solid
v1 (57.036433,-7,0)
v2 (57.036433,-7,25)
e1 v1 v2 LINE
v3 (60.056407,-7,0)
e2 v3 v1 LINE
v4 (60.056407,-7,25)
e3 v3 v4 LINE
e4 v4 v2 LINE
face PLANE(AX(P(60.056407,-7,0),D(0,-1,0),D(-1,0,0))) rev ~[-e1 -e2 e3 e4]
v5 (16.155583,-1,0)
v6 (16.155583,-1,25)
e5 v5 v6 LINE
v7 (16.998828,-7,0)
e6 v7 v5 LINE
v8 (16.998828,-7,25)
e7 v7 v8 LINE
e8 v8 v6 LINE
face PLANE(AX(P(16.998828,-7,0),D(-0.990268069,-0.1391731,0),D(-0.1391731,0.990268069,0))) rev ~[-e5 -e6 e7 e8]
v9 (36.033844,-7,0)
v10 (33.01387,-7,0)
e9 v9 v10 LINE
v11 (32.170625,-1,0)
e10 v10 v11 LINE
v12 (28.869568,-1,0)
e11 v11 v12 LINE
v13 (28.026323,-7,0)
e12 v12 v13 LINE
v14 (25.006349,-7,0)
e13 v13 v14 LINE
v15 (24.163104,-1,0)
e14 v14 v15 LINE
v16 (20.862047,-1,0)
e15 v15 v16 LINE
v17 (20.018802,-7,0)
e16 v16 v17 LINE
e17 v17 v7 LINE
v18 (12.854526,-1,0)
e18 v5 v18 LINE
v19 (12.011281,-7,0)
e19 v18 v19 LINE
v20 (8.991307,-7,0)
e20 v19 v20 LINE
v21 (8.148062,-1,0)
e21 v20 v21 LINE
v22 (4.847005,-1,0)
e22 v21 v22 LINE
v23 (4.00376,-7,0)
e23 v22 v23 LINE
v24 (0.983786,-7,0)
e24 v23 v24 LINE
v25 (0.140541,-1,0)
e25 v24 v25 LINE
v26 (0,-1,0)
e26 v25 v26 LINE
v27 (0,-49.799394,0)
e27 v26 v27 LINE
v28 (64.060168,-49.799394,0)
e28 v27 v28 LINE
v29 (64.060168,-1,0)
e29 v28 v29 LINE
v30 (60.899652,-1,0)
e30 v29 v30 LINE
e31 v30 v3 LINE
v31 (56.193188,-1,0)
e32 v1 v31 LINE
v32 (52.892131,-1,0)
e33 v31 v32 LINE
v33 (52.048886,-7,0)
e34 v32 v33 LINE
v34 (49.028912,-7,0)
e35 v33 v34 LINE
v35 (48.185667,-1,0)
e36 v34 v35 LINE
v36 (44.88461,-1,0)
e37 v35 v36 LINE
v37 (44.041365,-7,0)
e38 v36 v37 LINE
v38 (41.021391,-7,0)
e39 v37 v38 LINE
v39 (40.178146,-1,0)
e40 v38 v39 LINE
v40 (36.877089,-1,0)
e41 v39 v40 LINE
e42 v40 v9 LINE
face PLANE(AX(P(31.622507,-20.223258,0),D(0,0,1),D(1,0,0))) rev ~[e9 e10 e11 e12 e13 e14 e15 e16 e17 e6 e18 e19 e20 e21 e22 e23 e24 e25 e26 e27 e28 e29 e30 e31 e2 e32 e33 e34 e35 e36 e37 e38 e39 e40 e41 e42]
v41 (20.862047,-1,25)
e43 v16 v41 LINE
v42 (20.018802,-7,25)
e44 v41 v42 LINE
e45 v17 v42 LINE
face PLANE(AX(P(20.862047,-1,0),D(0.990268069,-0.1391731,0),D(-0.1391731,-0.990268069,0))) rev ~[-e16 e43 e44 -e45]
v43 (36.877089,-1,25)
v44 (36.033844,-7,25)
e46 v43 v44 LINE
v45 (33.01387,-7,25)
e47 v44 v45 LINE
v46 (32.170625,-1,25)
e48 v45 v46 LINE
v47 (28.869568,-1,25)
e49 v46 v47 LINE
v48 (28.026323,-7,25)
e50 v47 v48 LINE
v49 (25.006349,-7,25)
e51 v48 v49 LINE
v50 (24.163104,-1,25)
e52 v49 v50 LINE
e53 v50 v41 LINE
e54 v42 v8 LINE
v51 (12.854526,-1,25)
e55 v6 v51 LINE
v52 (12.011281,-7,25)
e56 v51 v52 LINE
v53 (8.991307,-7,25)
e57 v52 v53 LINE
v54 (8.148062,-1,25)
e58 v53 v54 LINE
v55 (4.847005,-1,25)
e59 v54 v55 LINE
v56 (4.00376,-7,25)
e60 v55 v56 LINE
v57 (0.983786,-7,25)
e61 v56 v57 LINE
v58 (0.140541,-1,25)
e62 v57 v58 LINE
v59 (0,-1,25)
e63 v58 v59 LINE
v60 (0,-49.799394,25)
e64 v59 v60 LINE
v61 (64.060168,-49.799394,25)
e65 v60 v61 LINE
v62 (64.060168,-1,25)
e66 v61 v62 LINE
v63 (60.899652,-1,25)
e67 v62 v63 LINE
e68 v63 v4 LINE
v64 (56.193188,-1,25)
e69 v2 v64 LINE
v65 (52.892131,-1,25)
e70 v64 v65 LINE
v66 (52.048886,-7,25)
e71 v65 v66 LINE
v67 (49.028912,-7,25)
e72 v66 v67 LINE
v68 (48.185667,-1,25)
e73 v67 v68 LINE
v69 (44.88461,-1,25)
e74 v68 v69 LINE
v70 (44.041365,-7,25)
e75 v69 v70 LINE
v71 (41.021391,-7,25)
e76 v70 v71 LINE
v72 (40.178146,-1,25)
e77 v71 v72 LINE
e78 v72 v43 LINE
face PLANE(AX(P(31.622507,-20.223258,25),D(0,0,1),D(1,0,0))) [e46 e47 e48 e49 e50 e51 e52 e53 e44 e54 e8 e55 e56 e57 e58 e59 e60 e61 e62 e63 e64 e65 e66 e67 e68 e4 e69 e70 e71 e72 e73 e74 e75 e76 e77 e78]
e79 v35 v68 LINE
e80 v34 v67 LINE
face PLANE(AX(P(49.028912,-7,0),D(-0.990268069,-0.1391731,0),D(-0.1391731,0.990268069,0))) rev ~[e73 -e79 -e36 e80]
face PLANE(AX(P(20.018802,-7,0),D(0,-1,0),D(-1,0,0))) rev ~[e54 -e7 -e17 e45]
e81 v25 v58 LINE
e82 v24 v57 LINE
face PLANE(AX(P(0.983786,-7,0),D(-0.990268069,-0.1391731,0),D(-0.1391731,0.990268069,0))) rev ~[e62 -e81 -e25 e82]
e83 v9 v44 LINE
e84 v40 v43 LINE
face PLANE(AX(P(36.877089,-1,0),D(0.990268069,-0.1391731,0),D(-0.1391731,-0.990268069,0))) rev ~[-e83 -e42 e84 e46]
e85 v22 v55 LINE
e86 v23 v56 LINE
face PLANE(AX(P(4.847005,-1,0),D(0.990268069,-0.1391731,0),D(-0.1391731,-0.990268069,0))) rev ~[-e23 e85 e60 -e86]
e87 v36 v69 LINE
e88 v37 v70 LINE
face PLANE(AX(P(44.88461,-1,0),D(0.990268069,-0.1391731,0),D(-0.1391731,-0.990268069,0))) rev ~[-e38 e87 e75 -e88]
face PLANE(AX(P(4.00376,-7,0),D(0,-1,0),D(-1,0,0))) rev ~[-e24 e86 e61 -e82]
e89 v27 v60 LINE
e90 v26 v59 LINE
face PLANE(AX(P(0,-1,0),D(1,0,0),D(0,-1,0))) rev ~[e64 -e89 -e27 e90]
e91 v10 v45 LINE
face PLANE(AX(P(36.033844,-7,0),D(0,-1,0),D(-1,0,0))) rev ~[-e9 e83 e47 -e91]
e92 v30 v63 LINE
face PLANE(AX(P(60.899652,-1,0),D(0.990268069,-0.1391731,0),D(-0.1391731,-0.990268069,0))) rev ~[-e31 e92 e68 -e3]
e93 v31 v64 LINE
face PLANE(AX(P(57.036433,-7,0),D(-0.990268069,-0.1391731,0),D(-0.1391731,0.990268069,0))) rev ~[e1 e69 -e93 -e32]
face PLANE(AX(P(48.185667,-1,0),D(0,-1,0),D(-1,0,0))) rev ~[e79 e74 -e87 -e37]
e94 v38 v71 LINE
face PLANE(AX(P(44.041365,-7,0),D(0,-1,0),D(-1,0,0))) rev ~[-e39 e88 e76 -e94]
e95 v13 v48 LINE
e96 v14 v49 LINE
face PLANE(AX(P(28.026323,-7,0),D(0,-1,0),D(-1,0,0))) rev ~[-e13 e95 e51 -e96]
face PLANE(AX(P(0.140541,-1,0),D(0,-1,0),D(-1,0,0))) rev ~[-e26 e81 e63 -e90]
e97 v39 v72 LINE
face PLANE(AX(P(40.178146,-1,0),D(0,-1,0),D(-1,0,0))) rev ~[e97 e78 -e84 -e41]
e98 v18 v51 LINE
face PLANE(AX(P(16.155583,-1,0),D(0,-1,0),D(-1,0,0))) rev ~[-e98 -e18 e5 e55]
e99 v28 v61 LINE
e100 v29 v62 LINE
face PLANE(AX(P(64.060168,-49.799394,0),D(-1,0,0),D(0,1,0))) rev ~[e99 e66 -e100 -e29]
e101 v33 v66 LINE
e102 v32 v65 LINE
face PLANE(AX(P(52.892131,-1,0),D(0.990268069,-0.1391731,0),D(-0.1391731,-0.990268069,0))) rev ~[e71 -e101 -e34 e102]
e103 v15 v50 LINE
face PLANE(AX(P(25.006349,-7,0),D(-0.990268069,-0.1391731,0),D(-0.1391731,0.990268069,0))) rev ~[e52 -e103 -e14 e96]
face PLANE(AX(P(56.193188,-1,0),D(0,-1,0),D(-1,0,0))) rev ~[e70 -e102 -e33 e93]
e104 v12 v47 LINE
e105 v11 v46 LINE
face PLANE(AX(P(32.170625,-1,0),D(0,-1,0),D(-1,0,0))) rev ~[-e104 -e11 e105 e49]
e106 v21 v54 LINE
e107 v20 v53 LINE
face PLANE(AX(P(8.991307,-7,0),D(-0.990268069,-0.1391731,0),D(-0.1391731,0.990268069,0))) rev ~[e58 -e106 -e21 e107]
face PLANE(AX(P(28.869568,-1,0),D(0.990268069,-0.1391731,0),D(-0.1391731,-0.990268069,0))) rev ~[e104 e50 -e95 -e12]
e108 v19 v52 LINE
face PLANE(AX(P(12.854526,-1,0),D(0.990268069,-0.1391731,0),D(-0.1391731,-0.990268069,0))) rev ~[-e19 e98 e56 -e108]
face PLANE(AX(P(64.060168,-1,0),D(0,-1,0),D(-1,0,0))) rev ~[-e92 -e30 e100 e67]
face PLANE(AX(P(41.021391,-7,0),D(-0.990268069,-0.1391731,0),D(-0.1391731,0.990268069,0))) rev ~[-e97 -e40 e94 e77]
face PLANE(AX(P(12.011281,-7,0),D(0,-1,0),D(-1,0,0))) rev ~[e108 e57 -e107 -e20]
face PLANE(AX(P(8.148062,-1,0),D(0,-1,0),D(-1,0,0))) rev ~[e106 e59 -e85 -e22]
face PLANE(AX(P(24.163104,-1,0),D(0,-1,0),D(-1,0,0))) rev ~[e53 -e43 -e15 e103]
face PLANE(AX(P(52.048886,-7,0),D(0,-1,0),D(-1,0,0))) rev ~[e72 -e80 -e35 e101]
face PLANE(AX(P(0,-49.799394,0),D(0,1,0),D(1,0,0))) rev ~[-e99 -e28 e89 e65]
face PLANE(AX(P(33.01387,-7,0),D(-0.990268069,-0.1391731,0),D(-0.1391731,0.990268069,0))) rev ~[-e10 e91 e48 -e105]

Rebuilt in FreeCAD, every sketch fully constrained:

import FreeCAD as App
import Part
import Sketcher

V = App.Vector
Q = App.Units.Quantity


def add_polygon(sketch, points):
    """Adds a closed chain of lines whose ends are joined by coincident constraints."""
    first, n = sketch.GeometryCount, len(points)
    for a, b in zip(points, points[1:] + points[:1]):
        sketch.addGeometry(Part.LineSegment(App.Vector(*a, 0), App.Vector(*b, 0)), False)
    for i in range(n):
        sketch.addConstraint(Sketcher.Constraint("Coincident", first + i, 2, first + (i + 1) % n, 1))

doc = App.newDocument("Part")
params = doc.addObject("Spreadsheet::Sheet", "Params")
for row, (alias, value) in enumerate([
    ("pad1_length", "25 mm"),
], start=1):
    params.set(f"A{row}", alias)
    params.set(f"B{row}", "=" + value)
    params.setAlias(f"B{row}", alias)

body = doc.addObject("PartDesign::Body", "Body")

# Sketch on XY plane
sketch1 = doc.addObject("Sketcher::SketchObject", "Sketch")
body.addObject(sketch1)
sketch1.AttachmentSupport = (doc.XY_Plane, [""])
sketch1.MapMode = "FlatFace"
add_polygon(sketch1, [(0.140541, -1), (0, -1), (0, -49.799394), (64.060168, -49.799394), (64.060168, -1), (60.899652, -1), (60.056407, -7), (57.036433, -7), (56.193188, -1), (52.892131, -1), (52.048886, -7), (49.028912, -7), (48.185667, -1), (44.88461, -1), (44.041365, -7), (41.021391, -7), (40.178146, -1), (36.877089, -1), (36.033844, -7), (33.01387, -7), (32.170625, -1), (28.869568, -1), (28.026323, -7), (25.006349, -7), (24.163104, -1), (20.862047, -1), (20.018802, -7), (16.998828, -7), (16.155583, -1), (12.854526, -1), (12.011281, -7), (8.991307, -7), (8.148062, -1), (4.847005, -1), (4.00376, -7), (0.983786, -7)])  # lines 0-35
sketch1.addConstraint([
    Sketcher.Constraint("Horizontal", 0),
    Sketcher.Constraint("Vertical", 1),
    Sketcher.Constraint("Horizontal", 2),
    Sketcher.Constraint("Vertical", 3),
    Sketcher.Constraint("Horizontal", 4),
    Sketcher.Constraint("Horizontal", 6),
    Sketcher.Constraint("Horizontal", 8),
    Sketcher.Constraint("Horizontal", 10),
    Sketcher.Constraint("Horizontal", 12),
    Sketcher.Constraint("Horizontal", 14),
    Sketcher.Constraint("Horizontal", 16),
    Sketcher.Constraint("Horizontal", 18),
    Sketcher.Constraint("Horizontal", 20),
    Sketcher.Constraint("Horizontal", 22),
    Sketcher.Constraint("Horizontal", 24),
    Sketcher.Constraint("Horizontal", 26),
    Sketcher.Constraint("Horizontal", 28),
    Sketcher.Constraint("Horizontal", 30),
    Sketcher.Constraint("Horizontal", 32),
    Sketcher.Constraint("Horizontal", 34),
    Sketcher.Constraint("PointOnObject", 0, 2, -2),
    Sketcher.Constraint("Parallel", 5, 9),
    Sketcher.Constraint("Parallel", 7, 11),
    Sketcher.Constraint("Parallel", 9, 13),
    Sketcher.Constraint("Parallel", 11, 15),
    Sketcher.Constraint("Parallel", 13, 17),
    Sketcher.Constraint("Parallel", 15, 19),
    Sketcher.Constraint("Parallel", 17, 21),
    Sketcher.Constraint("Parallel", 19, 23),
    Sketcher.Constraint("Parallel", 21, 25),
    Sketcher.Constraint("Parallel", 23, 27),
    Sketcher.Constraint("Parallel", 25, 29),
    Sketcher.Constraint("Parallel", 27, 31),
    Sketcher.Constraint("Parallel", 29, 33),
    Sketcher.Constraint("Parallel", 31, 35),
    Sketcher.Constraint("Horizontal", 0, 2, 3, 2),
    Sketcher.Constraint("Horizontal", 4, 2, 7, 2),
    Sketcher.Constraint("Horizontal", 6, 2, 9, 2),
    Sketcher.Constraint("Horizontal", 8, 2, 11, 2),
    Sketcher.Constraint("Horizontal", 10, 2, 13, 2),
    Sketcher.Constraint("Horizontal", 12, 2, 15, 2),
    Sketcher.Constraint("Horizontal", 14, 2, 17, 2),
    Sketcher.Constraint("Horizontal", 16, 2, 19, 2),
    Sketcher.Constraint("Horizontal", 18, 2, 21, 2),
    Sketcher.Constraint("Horizontal", 20, 2, 23, 2),
    Sketcher.Constraint("Horizontal", 22, 2, 25, 2),
    Sketcher.Constraint("Horizontal", 24, 2, 27, 2),
    Sketcher.Constraint("Horizontal", 26, 2, 29, 2),
    Sketcher.Constraint("Horizontal", 28, 2, 31, 2),
    Sketcher.Constraint("Horizontal", 30, 2, 33, 2),
    Sketcher.Constraint("Equal", 6, 10),
    Sketcher.Constraint("Equal", 8, 12),
    Sketcher.Constraint("Equal", 10, 14),
    Sketcher.Constraint("Equal", 12, 16),
    Sketcher.Constraint("Equal", 14, 18),
    Sketcher.Constraint("Equal", 16, 20),
    Sketcher.Constraint("Equal", 18, 22),
    Sketcher.Constraint("Equal", 20, 24),
    Sketcher.Constraint("Equal", 22, 26),
    Sketcher.Constraint("Equal", 24, 28),
    Sketcher.Constraint("Equal", 26, 30),
    Sketcher.Constraint("Equal", 28, 32),
    Sketcher.Constraint("Equal", 30, 34),
    Sketcher.Constraint("Equal", 5, 7),
    Sketcher.Constraint("Angle", 5, Q("-98 deg")),
    Sketcher.Constraint("DistanceY", 0, 2, -1, 1, 1.0),
    Sketcher.Constraint("DistanceY", 5, 2, -1, 1, 7.0),
    Sketcher.Constraint("DistanceX", 0, 2, 0, 1, 0.140541),
    Sketcher.Constraint("DistanceX", 2, 1, 2, 2, 64.060168),
    Sketcher.Constraint("DistanceX", 9, 2, 7, 2, 4.144302),
    Sketcher.Constraint("DistanceX", 4, 2, 4, 1, 3.160516),
    Sketcher.Constraint("DistanceY", 1, 2, 1, 1, 48.799394),
])
pad1 = doc.addObject("PartDesign::Pad", "Pad")
body.addObject(pad1)
pad1.Profile = sketch1
pad1.setExpression("Length", "Params.pad1_length")

doc.recompute()
